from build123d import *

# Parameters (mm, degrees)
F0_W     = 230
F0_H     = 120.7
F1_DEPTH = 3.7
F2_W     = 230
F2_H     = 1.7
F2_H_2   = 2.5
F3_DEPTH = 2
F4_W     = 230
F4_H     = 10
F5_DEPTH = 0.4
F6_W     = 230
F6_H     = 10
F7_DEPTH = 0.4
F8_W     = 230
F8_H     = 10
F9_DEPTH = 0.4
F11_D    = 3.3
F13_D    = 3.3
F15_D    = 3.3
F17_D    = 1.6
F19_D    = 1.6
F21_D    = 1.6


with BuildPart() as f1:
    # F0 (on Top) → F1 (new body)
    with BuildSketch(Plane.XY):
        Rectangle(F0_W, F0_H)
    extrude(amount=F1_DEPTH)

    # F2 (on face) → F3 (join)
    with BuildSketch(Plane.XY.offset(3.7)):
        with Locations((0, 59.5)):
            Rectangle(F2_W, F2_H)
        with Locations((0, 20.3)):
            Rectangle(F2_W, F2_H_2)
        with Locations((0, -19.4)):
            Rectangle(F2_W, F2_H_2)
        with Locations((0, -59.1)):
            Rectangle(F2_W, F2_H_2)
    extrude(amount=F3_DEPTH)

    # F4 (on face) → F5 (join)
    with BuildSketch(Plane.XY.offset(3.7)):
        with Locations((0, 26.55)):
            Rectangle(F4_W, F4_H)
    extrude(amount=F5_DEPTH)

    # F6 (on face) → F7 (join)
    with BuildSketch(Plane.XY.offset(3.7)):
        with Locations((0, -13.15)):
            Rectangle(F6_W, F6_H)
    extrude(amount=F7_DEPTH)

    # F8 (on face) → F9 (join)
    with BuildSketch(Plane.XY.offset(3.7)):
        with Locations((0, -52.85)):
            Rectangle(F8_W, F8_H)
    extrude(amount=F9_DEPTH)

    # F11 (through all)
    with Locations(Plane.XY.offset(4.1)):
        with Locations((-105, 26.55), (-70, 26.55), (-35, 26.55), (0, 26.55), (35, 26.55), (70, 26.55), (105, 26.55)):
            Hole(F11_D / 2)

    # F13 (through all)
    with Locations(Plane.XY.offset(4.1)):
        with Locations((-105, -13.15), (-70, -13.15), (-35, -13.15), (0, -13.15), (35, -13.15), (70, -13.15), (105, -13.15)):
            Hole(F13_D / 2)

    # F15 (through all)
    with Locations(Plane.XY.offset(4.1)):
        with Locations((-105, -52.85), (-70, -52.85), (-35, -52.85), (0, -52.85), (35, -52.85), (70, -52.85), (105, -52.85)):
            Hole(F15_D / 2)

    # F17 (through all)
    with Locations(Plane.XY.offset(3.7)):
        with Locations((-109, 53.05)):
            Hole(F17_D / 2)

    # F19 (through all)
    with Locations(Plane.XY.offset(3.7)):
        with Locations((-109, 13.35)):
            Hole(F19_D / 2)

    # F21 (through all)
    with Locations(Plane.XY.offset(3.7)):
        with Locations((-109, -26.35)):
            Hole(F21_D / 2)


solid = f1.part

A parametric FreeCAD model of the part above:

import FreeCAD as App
import Part
import Sketcher

V = App.Vector
Q = App.Units.Quantity

doc = App.newDocument("Part")
body = doc.addObject("PartDesign::Body", "Body")

sketch1 = body.newObject("Sketcher::SketchObject", "Sketch")
sketch1.AttachmentSupport = (doc.getObject("XY_Plane"), [""])
sketch1.MapMode = "FlatFace"
sketch1.addGeometry([
    Part.LineSegment(V(-115, 60, 0), V(-115, -60, 0)),
    Part.LineSegment(V(-115, -60, 0), V(115, -60, 0)),
    Part.LineSegment(V(115, -60, 0), V(115, 60, 0)),
    Part.LineSegment(V(115, 60, 0), V(-115, 60, 0)),
], False)
sketch1.addConstraint([
    Sketcher.Constraint("Coincident", 0, 2, 1, 1),
    Sketcher.Constraint("Coincident", 1, 2, 2, 1),
    Sketcher.Constraint("Coincident", 2, 2, 3, 1),
    Sketcher.Constraint("Coincident", 3, 2, 0, 1),
    Sketcher.Constraint("Vertical", 0),
    Sketcher.Constraint("Horizontal", 1),
    Sketcher.Constraint("Vertical", 2),
    Sketcher.Constraint("Horizontal", 3),
    Sketcher.Constraint("Symmetric", 0, 2, 2, 2, -1, 1),
    Sketcher.Constraint("DistanceX", 1, 1, 1, 2, Q("230 mm")),
    Sketcher.Constraint("DistanceY", 0, 2, 0, 1, Q("120.7 mm")),
])
pad1 = body.newObject("PartDesign::Pad", "Pad")
pad1.Profile = sketch1
pad1.Length = 3.7

sketch2 = body.newObject("Sketcher::SketchObject", "Sketch001")
sketch2.AttachmentSupport = (doc.getObject("XY_Plane"), [""])
sketch2.MapMode = "FlatFace"
sketch2.AttachmentOffset = App.Placement(V(0, 0, 3.7), App.Rotation())
sketch2.addGeometry([
    Part.LineSegment(V(-115, 60.4, 0), V(-115, 58.6, 0)),
    Part.LineSegment(V(-115, 58.6, 0), V(115, 58.6, 0)),
    Part.LineSegment(V(115, 58.6, 0), V(115, 60.4, 0)),
    Part.LineSegment(V(115, 60.4, 0), V(-115, 60.4, 0)),
    Part.LineSegment(V(-115, 21.6, 0), V(-115, 19.1, 0)),
    Part.LineSegment(V(-115, 19.1, 0), V(115, 19.1, 0)),
    Part.LineSegment(V(115, 19.1, 0), V(115, 21.6, 0)),
    Part.LineSegment(V(115, 21.6, 0), V(-115, 21.6, 0)),
    Part.LineSegment(V(-115, -18.1, 0), V(-115, -20.6, 0)),
    Part.LineSegment(V(-115, -20.6, 0), V(115, -20.6, 0)),
    Part.LineSegment(V(115, -20.6, 0), V(115, -18.1, 0)),
    Part.LineSegment(V(115, -18.1, 0), V(-115, -18.1, 0)),
    Part.LineSegment(V(-115, -57.9, 0), V(-115, -60.4, 0)),
    Part.LineSegment(V(-115, -60.4, 0), V(115, -60.4, 0)),
    Part.LineSegment(V(115, -60.4, 0), V(115, -57.9, 0)),
    Part.LineSegment(V(115, -57.9, 0), V(-115, -57.9, 0)),
], False)
sketch2.addConstraint([
    Sketcher.Constraint("Coincident", 0, 2, 1, 1),
    Sketcher.Constraint("Coincident", 1, 2, 2, 1),
    Sketcher.Constraint("Coincident", 2, 2, 3, 1),
    Sketcher.Constraint("Coincident", 3, 2, 0, 1),
    Sketcher.Constraint("Coincident", 4, 2, 5, 1),
    Sketcher.Constraint("Coincident", 5, 2, 6, 1),
    Sketcher.Constraint("Coincident", 6, 2, 7, 1),
    Sketcher.Constraint("Coincident", 7, 2, 4, 1),
    Sketcher.Constraint("Coincident", 8, 2, 9, 1),
    Sketcher.Constraint("Coincident", 9, 2, 10, 1),
    Sketcher.Constraint("Coincident", 10, 2, 11, 1),
    Sketcher.Constraint("Coincident", 11, 2, 8, 1),
    Sketcher.Constraint("Coincident", 12, 2, 13, 1),
    Sketcher.Constraint("Coincident", 13, 2, 14, 1),
    Sketcher.Constraint("Coincident", 14, 2, 15, 1),
    Sketcher.Constraint("Coincident", 15, 2, 12, 1),
    Sketcher.Constraint("Vertical", 0),
    Sketcher.Constraint("Horizontal", 1),
    Sketcher.Constraint("Vertical", 2),
    Sketcher.Constraint("Horizontal", 3),
    Sketcher.Constraint("Vertical", 4),
    Sketcher.Constraint("Horizontal", 5),
    Sketcher.Constraint("Vertical", 6),
    Sketcher.Constraint("Horizontal", 7),
    Sketcher.Constraint("Vertical", 8),
    Sketcher.Constraint("Horizontal", 9),
    Sketcher.Constraint("Vertical", 10),
    Sketcher.Constraint("Horizontal", 11),
    Sketcher.Constraint("Vertical", 12),
    Sketcher.Constraint("Horizontal", 13),
    Sketcher.Constraint("Vertical", 14),
    Sketcher.Constraint("Horizontal", 15),
    Sketcher.Constraint("Symmetric", 2, 2, 12, 2, -1, 1),
    Sketcher.Constraint("Vertical", 3, 2, 4, 2),
    Sketcher.Constraint("Vertical", 2, 2, 5, 2),
    Sketcher.Constraint("Vertical", 7, 2, 8, 2),
    Sketcher.Constraint("Vertical", 6, 2, 9, 2),
    Sketcher.Constraint("Vertical", 11, 2, 12, 2),
    Sketcher.Constraint("Vertical", 10, 2, 13, 2),
    Sketcher.Constraint("Equal", 6, 8),
    Sketcher.Constraint("Equal", 10, 12),
    Sketcher.Constraint("DistanceX", 1, 1, 1, 2, Q("230 mm")),
    Sketcher.Constraint("DistanceY", 0, 2, 0, 1, Q("1.7 mm")),
    Sketcher.Constraint("DistanceY", 4, 2, 4, 1, Q("2.5 mm")),
    Sketcher.Constraint("DistanceY", 8, 2, 3, 2, Q("81 mm")),
    Sketcher.Constraint("DistanceY", 12, 2, 0, 2, Q("119 mm")),
    Sketcher.Constraint("DistanceY", 4, 2, 0, 2, Q("39.6 mm")),
])
pad2 = body.newObject("PartDesign::Pad", "Pad001")
pad2.Profile = sketch2
pad2.Length = 2

sketch3 = body.newObject("Sketcher::SketchObject", "Sketch002")
sketch3.AttachmentSupport = (doc.getObject("XY_Plane"), [""])
sketch3.MapMode = "FlatFace"
sketch3.AttachmentOffset = App.Placement(V(0, 0, 3.7), App.Rotation())
sketch3.addGeometry([
    Part.LineSegment(V(-115, 32, 0), V(-115, 22, 0)),
    Part.LineSegment(V(-115, 22, 0), V(115, 22, 0)),
    Part.LineSegment(V(115, 22, 0), V(115, 32, 0)),
    Part.LineSegment(V(115, 32, 0), V(-115, 32, 0)),
], False)
sketch3.addConstraint([
    Sketcher.Constraint("Coincident", 0, 2, 1, 1),
    Sketcher.Constraint("Coincident", 1, 2, 2, 1),
    Sketcher.Constraint("Coincident", 2, 2, 3, 1),
    Sketcher.Constraint("Coincident", 3, 2, 0, 1),
    Sketcher.Constraint("Vertical", 0),
    Sketcher.Constraint("Horizontal", 1),
    Sketcher.Constraint("Vertical", 2),
    Sketcher.Constraint("Horizontal", 3),
    Sketcher.Constraint("DistanceX", 1, 1, 1, 2, Q("230 mm")),
    Sketcher.Constraint("DistanceY", 0, 2, 0, 1, Q("10 mm")),
    Sketcher.Constraint("DistanceX", 0, 2, -1, 1, Q("115 mm")),
    Sketcher.Constraint("DistanceY", -1, 1, 0, 2, Q("21.55 mm")),
])
pad3 = body.newObject("PartDesign::Pad", "Pad002")
pad3.Profile = sketch3
pad3.Length = 0.4

sketch4 = body.newObject("Sketcher::SketchObject", "Sketch003")
sketch4.AttachmentSupport = (doc.getObject("XY_Plane"), [""])
sketch4.MapMode = "FlatFace"
sketch4.AttachmentOffset = App.Placement(V(0, 0, 3.7), App.Rotation())
sketch4.addGeometry([
    Part.LineSegment(V(-115, -8, 0), V(-115, -18, 0)),
    Part.LineSegment(V(-115, -18, 0), V(115, -18, 0)),
    Part.LineSegment(V(115, -18, 0), V(115, -8, 0)),
    Part.LineSegment(V(115, -8, 0), V(-115, -8, 0)),
], False)
sketch4.addConstraint([
    Sketcher.Constraint("Coincident", 0, 2, 1, 1),
    Sketcher.Constraint("Coincident", 1, 2, 2, 1),
    Sketcher.Constraint("Coincident", 2, 2, 3, 1),
    Sketcher.Constraint("Coincident", 3, 2, 0, 1),
    Sketcher.Constraint("Vertical", 0),
    Sketcher.Constraint("Horizontal", 1),
    Sketcher.Constraint("Vertical", 2),
    Sketcher.Constraint("Horizontal", 3),
    Sketcher.Constraint("DistanceX", 1, 1, 1, 2, Q("230 mm")),
    Sketcher.Constraint("DistanceY", 0, 2, 0, 1, Q("10 mm")),
    Sketcher.Constraint("DistanceX", 0, 2, -1, 1, Q("115 mm")),
    Sketcher.Constraint("DistanceY", 0, 2, -1, 1, Q("18.15 mm")),
])
pad4 = body.newObject("PartDesign::Pad", "Pad003")
pad4.Profile = sketch4
pad4.Length = 0.4

sketch5 = body.newObject("Sketcher::SketchObject", "Sketch004")
sketch5.AttachmentSupport = (doc.getObject("XY_Plane"), [""])
sketch5.MapMode = "FlatFace"
sketch5.AttachmentOffset = App.Placement(V(0, 0, 3.7), App.Rotation())
sketch5.addGeometry([
    Part.LineSegment(V(-115, -48, 0), V(-115, -58, 0)),
    Part.LineSegment(V(-115, -58, 0), V(115, -58, 0)),
    Part.LineSegment(V(115, -58, 0), V(115, -48, 0)),
    Part.LineSegment(V(115, -48, 0), V(-115, -48, 0)),
], False)
sketch5.addConstraint([
    Sketcher.Constraint("Coincident", 0, 2, 1, 1),
    Sketcher.Constraint("Coincident", 1, 2, 2, 1),
    Sketcher.Constraint("Coincident", 2, 2, 3, 1),
    Sketcher.Constraint("Coincident", 3, 2, 0, 1),
    Sketcher.Constraint("Vertical", 0),
    Sketcher.Constraint("Horizontal", 1),
    Sketcher.Constraint("Vertical", 2),
    Sketcher.Constraint("Horizontal", 3),
    Sketcher.Constraint("DistanceX", 1, 1, 1, 2, Q("230 mm")),
    Sketcher.Constraint("DistanceY", 0, 2, 0, 1, Q("10 mm")),
    Sketcher.Constraint("DistanceX", 0, 2, -1, 1, Q("115 mm")),
    Sketcher.Constraint("DistanceY", 0, 2, -1, 1, Q("57.85 mm")),
])
pad5 = body.newObject("PartDesign::Pad", "Pad004")
pad5.Profile = sketch5
pad5.Length = 0.4

sketch6 = body.newObject("Sketcher::SketchObject", "Sketch005")
sketch6.AttachmentSupport = (doc.getObject("XY_Plane"), [""])
sketch6.MapMode = "FlatFace"
sketch6.AttachmentOffset = App.Placement(V(0, 0, 4.1), App.Rotation())
sketch6.addGeometry([
    Part.Circle(V(-105, 26.6, 0), V(0, 0, 1), 1.6),
    Part.Circle(V(-70, 26.6, 0), V(0, 0, 1), 1.6),
    Part.Circle(V(-35, 26.6, 0), V(0, 0, 1), 1.6),
    Part.Circle(V(0, 26.6, 0), V(0, 0, 1), 1.6),
    Part.Circle(V(35, 26.6, 0), V(0, 0, 1), 1.6),
    Part.Circle(V(70, 26.6, 0), V(0, 0, 1), 1.6),
    Part.Circle(V(105, 26.6, 0), V(0, 0, 1), 1.6),
], False)
sketch6.addConstraint([
    Sketcher.Constraint("Equal", 0, 1),
    Sketcher.Constraint("Equal", 1, 2),
    Sketcher.Constraint("Equal", 2, 3),
    Sketcher.Constraint("Equal", 3, 4),
    Sketcher.Constraint("Equal", 4, 5),
    Sketcher.Constraint("Equal", 5, 6),
    Sketcher.Constraint("Symmetric", 2, 3, 4, 3, -2),
    Sketcher.Constraint("Symmetric", 1, 3, 5, 3, -2),
    Sketcher.Constraint("Symmetric", 0, 3, 6, 3, -2),
    Sketcher.Constraint("PointOnObject", 3, 3, -2),
    Sketcher.Constraint("Horizontal", 0, 3, 1, 3),
    Sketcher.Constraint("Horizontal", 1, 3, 2, 3),
    Sketcher.Constraint("Horizontal", 2, 3, 3, 3),
    Sketcher.Constraint("Diameter", 0, Q("3.3 mm")),
    Sketcher.Constraint("DistanceX", 0, 3, -1, 1, Q("105 mm")),
    Sketcher.Constraint("DistanceX", 1, 3, -1, 1, Q("70 mm")),
    Sketcher.Constraint("DistanceX", 2, 3, -1, 1, Q("35 mm")),
    Sketcher.Constraint("DistanceY", -1, 1, 0, 3, Q("26.55 mm")),
])
doc.recompute()
hole = body.newObject("PartDesign::Hole", "Hole")
hole.Profile = sketch6
hole.ThreadType = "None"
hole.Diameter = 3.3
hole.DepthType = "ThroughAll"

sketch7 = body.newObject("Sketcher::SketchObject", "Sketch006")
sketch7.AttachmentSupport = (doc.getObject("XY_Plane"), [""])
sketch7.MapMode = "FlatFace"
sketch7.AttachmentOffset = App.Placement(V(0, 0, 4.1), App.Rotation())
sketch7.addGeometry([
    Part.Circle(V(-105, -13.2, 0), V(0, 0, 1), 1.6),
    Part.Circle(V(-70, -13.2, 0), V(0, 0, 1), 1.6),
    Part.Circle(V(-35, -13.2, 0), V(0, 0, 1), 1.6),
    Part.Circle(V(0, -13.2, 0), V(0, 0, 1), 1.6),
    Part.Circle(V(35, -13.2, 0), V(0, 0, 1), 1.6),
    Part.Circle(V(70, -13.2, 0), V(0, 0, 1), 1.6),
    Part.Circle(V(105, -13.2, 0), V(0, 0, 1), 1.6),
], False)
sketch7.addConstraint([
    Sketcher.Constraint("Equal", 0, 1),
    Sketcher.Constraint("Equal", 1, 2),
    Sketcher.Constraint("Equal", 2, 3),
    Sketcher.Constraint("Equal", 3, 4),
    Sketcher.Constraint("Equal", 4, 5),
    Sketcher.Constraint("Equal", 5, 6),
    Sketcher.Constraint("Symmetric", 2, 3, 4, 3, -2),
    Sketcher.Constraint("Symmetric", 1, 3, 5, 3, -2),
    Sketcher.Constraint("Symmetric", 0, 3, 6, 3, -2),
    Sketcher.Constraint("PointOnObject", 3, 3, -2),
    Sketcher.Constraint("Horizontal", 0, 3, 1, 3),
    Sketcher.Constraint("Horizontal", 1, 3, 2, 3),
    Sketcher.Constraint("Horizontal", 2, 3, 3, 3),
    Sketcher.Constraint("Diameter", 0, Q("3.3 mm")),
    Sketcher.Constraint("DistanceX", 0, 3, -1, 1, Q("105 mm")),
    Sketcher.Constraint("DistanceX", 1, 3, -1, 1, Q("70 mm")),
    Sketcher.Constraint("DistanceX", 2, 3, -1, 1, Q("35 mm")),
    Sketcher.Constraint("DistanceY", 0, 3, -1, 1, Q("13.15 mm")),
])
doc.recompute()
hole2 = body.newObject("PartDesign::Hole", "Hole001")
hole2.Profile = sketch7
hole2.ThreadType = "None"
hole2.Diameter = 3.3
hole2.DepthType = "ThroughAll"

sketch8 = body.newObject("Sketcher::SketchObject", "Sketch007")
sketch8.AttachmentSupport = (doc.getObject("XY_Plane"), [""])
sketch8.MapMode = "FlatFace"
sketch8.AttachmentOffset = App.Placement(V(0, 0, 4.1), App.Rotation())
sketch8.addGeometry([
    Part.Circle(V(-105, -52.9, 0), V(0, 0, 1), 1.6),
    Part.Circle(V(-70, -52.9, 0), V(0, 0, 1), 1.6),
    Part.Circle(V(-35, -52.9, 0), V(0, 0, 1), 1.6),
    Part.Circle(V(0, -52.9, 0), V(0, 0, 1), 1.6),
    Part.Circle(V(35, -52.9, 0), V(0, 0, 1), 1.6),
    Part.Circle(V(70, -52.9, 0), V(0, 0, 1), 1.6),
    Part.Circle(V(105, -52.9, 0), V(0, 0, 1), 1.6),
], False)
sketch8.addConstraint([
    Sketcher.Constraint("Equal", 0, 1),
    Sketcher.Constraint("Equal", 1, 2),
    Sketcher.Constraint("Equal", 2, 3),
    Sketcher.Constraint("Equal", 3, 4),
    Sketcher.Constraint("Equal", 4, 5),
    Sketcher.Constraint("Equal", 5, 6),
    Sketcher.Constraint("Symmetric", 2, 3, 4, 3, -2),
    Sketcher.Constraint("Symmetric", 1, 3, 5, 3, -2),
    Sketcher.Constraint("Symmetric", 0, 3, 6, 3, -2),
    Sketcher.Constraint("PointOnObject", 3, 3, -2),
    Sketcher.Constraint("Horizontal", 0, 3, 1, 3),
    Sketcher.Constraint("Horizontal", 1, 3, 2, 3),
    Sketcher.Constraint("Horizontal", 2, 3, 3, 3),
    Sketcher.Constraint("Diameter", 0, Q("3.3 mm")),
    Sketcher.Constraint("DistanceX", 0, 3, -1, 1, Q("105 mm")),
    Sketcher.Constraint("DistanceX", 1, 3, -1, 1, Q("70 mm")),
    Sketcher.Constraint("DistanceX", 2, 3, -1, 1, Q("35 mm")),
    Sketcher.Constraint("DistanceY", 0, 3, -1, 1, Q("52.85 mm")),
])
doc.recompute()
hole3 = body.newObject("PartDesign::Hole", "Hole002")
hole3.Profile = sketch8
hole3.ThreadType = "None"
hole3.Diameter = 3.3
hole3.DepthType = "ThroughAll"

sketch9 = body.newObject("Sketcher::SketchObject", "Sketch008")
sketch9.AttachmentSupport = (doc.getObject("XY_Plane"), [""])
sketch9.MapMode = "FlatFace"
sketch9.AttachmentOffset = App.Placement(V(0, 0, 3.7), App.Rotation())
sketch9.addGeometry(Part.Circle(V(-109, 53, 0), V(0, 0, 1), 0.8), False)
sketch9.addConstraint([
    Sketcher.Constraint("Diameter", 0, Q("1.6 mm")),
    Sketcher.Constraint("DistanceX", 0, 3, -1, 1, Q("109 mm")),
    Sketcher.Constraint("DistanceY", -1, 1, 0, 3, Q("53.05 mm")),
])
doc.recompute()
hole4 = body.newObject("PartDesign::Hole", "Hole003")
hole4.Profile = sketch9
hole4.ThreadType = "None"
hole4.Diameter = 1.6
hole4.DepthType = "ThroughAll"

sketch10 = body.newObject("Sketcher::SketchObject", "Sketch009")
sketch10.AttachmentSupport = (doc.getObject("XY_Plane"), [""])
sketch10.MapMode = "FlatFace"
sketch10.AttachmentOffset = App.Placement(V(0, 0, 3.7), App.Rotation())
sketch10.addGeometry(Part.Circle(V(-109, 13.3, 0), V(0, 0, 1), 0.8), False)
sketch10.addConstraint([
    Sketcher.Constraint("Diameter", 0, Q("1.6 mm")),
    Sketcher.Constraint("DistanceX", 0, 3, -1, 1, Q("109 mm")),
    Sketcher.Constraint("DistanceY", -1, 1, 0, 3, Q("13.35 mm")),
])
doc.recompute()
hole5 = body.newObject("PartDesign::Hole", "Hole004")
hole5.Profile = sketch10
hole5.ThreadType = "None"
hole5.Diameter = 1.6
hole5.DepthType = "ThroughAll"

sketch11 = body.newObject("Sketcher::SketchObject", "Sketch010")
sketch11.AttachmentSupport = (doc.getObject("XY_Plane"), [""])
sketch11.MapMode = "FlatFace"
sketch11.AttachmentOffset = App.Placement(V(0, 0, 3.7), App.Rotation())
sketch11.addGeometry(Part.Circle(V(-109, -26.4, 0), V(0, 0, 1), 0.8), False)
sketch11.addConstraint([
    Sketcher.Constraint("Diameter", 0, Q("1.6 mm")),
    Sketcher.Constraint("DistanceX", 0, 3, -1, 1, Q("109 mm")),
    Sketcher.Constraint("DistanceY", 0, 3, -1, 1, Q("26.35 mm")),
])
doc.recompute()
hole6 = body.newObject("PartDesign::Hole", "Hole005")
hole6.Profile = sketch11
hole6.ThreadType = "None"
hole6.Diameter = 1.6
hole6.DepthType = "ThroughAll"

doc.recompute()
